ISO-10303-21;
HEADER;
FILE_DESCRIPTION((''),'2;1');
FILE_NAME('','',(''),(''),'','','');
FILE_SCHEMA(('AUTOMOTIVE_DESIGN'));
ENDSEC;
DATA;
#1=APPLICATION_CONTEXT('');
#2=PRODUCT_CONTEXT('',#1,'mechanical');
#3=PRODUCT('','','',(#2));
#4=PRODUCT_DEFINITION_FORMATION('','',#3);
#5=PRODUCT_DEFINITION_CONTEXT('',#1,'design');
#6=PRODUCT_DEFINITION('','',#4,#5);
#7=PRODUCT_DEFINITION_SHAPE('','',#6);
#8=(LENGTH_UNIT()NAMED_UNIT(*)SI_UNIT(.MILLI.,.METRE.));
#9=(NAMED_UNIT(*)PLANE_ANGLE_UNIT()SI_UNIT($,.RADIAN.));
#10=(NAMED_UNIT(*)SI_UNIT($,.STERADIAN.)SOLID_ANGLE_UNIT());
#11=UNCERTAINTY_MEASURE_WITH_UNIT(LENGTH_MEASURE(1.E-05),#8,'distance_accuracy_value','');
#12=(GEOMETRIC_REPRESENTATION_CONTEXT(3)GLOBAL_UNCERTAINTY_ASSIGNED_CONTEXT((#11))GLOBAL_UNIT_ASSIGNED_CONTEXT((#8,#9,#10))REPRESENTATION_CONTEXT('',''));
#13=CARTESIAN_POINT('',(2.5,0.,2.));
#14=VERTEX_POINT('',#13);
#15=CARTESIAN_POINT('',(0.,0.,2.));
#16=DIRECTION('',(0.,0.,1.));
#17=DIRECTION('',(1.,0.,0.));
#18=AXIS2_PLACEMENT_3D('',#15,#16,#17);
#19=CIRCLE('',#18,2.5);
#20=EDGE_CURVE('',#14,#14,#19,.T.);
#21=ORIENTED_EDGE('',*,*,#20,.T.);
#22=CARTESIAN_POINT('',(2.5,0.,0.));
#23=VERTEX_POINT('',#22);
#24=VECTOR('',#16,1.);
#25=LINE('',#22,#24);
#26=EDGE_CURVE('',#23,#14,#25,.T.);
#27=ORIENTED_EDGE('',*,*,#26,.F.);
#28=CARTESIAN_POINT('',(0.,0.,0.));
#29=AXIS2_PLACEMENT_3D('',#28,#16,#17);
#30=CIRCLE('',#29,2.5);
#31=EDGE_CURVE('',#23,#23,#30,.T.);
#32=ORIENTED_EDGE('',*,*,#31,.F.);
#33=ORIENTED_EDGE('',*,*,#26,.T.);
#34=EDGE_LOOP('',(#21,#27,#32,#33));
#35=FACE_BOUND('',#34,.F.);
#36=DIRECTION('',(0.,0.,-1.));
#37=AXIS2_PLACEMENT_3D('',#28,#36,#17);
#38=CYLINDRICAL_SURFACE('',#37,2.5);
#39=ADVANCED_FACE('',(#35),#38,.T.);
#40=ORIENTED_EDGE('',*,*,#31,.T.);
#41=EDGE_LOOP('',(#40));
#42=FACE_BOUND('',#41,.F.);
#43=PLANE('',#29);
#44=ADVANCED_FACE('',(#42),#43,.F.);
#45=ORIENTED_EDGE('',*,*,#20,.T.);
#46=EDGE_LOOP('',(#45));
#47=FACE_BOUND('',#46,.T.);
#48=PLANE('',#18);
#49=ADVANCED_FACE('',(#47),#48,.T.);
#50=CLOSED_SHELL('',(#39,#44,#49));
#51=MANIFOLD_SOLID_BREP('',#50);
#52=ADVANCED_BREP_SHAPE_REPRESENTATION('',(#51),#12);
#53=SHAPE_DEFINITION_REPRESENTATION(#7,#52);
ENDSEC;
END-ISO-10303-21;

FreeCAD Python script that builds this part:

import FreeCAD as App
import Part
import Sketcher

doc = App.newDocument("Part")
body = doc.addObject("PartDesign::Body", "Body")

sketch1 = body.newObject("Sketcher::SketchObject", "Sketch")
sketch1.AttachmentSupport = (doc.getObject("XY_Plane"), [""])
sketch1.MapMode = "FlatFace"
sketch1.addGeometry(Part.Circle(App.Vector(0, 0, 0), App.Vector(0, 0, 1), 2.5), False)
sketch1.addConstraint([
    Sketcher.Constraint("Coincident", 0, 3, -1, 1),
    Sketcher.Constraint("Diameter", 0, 5.0),
])
pad1 = body.newObject("PartDesign::Pad", "Pad")
pad1.Profile = sketch1
pad1.Length = 2

doc.recompute()
